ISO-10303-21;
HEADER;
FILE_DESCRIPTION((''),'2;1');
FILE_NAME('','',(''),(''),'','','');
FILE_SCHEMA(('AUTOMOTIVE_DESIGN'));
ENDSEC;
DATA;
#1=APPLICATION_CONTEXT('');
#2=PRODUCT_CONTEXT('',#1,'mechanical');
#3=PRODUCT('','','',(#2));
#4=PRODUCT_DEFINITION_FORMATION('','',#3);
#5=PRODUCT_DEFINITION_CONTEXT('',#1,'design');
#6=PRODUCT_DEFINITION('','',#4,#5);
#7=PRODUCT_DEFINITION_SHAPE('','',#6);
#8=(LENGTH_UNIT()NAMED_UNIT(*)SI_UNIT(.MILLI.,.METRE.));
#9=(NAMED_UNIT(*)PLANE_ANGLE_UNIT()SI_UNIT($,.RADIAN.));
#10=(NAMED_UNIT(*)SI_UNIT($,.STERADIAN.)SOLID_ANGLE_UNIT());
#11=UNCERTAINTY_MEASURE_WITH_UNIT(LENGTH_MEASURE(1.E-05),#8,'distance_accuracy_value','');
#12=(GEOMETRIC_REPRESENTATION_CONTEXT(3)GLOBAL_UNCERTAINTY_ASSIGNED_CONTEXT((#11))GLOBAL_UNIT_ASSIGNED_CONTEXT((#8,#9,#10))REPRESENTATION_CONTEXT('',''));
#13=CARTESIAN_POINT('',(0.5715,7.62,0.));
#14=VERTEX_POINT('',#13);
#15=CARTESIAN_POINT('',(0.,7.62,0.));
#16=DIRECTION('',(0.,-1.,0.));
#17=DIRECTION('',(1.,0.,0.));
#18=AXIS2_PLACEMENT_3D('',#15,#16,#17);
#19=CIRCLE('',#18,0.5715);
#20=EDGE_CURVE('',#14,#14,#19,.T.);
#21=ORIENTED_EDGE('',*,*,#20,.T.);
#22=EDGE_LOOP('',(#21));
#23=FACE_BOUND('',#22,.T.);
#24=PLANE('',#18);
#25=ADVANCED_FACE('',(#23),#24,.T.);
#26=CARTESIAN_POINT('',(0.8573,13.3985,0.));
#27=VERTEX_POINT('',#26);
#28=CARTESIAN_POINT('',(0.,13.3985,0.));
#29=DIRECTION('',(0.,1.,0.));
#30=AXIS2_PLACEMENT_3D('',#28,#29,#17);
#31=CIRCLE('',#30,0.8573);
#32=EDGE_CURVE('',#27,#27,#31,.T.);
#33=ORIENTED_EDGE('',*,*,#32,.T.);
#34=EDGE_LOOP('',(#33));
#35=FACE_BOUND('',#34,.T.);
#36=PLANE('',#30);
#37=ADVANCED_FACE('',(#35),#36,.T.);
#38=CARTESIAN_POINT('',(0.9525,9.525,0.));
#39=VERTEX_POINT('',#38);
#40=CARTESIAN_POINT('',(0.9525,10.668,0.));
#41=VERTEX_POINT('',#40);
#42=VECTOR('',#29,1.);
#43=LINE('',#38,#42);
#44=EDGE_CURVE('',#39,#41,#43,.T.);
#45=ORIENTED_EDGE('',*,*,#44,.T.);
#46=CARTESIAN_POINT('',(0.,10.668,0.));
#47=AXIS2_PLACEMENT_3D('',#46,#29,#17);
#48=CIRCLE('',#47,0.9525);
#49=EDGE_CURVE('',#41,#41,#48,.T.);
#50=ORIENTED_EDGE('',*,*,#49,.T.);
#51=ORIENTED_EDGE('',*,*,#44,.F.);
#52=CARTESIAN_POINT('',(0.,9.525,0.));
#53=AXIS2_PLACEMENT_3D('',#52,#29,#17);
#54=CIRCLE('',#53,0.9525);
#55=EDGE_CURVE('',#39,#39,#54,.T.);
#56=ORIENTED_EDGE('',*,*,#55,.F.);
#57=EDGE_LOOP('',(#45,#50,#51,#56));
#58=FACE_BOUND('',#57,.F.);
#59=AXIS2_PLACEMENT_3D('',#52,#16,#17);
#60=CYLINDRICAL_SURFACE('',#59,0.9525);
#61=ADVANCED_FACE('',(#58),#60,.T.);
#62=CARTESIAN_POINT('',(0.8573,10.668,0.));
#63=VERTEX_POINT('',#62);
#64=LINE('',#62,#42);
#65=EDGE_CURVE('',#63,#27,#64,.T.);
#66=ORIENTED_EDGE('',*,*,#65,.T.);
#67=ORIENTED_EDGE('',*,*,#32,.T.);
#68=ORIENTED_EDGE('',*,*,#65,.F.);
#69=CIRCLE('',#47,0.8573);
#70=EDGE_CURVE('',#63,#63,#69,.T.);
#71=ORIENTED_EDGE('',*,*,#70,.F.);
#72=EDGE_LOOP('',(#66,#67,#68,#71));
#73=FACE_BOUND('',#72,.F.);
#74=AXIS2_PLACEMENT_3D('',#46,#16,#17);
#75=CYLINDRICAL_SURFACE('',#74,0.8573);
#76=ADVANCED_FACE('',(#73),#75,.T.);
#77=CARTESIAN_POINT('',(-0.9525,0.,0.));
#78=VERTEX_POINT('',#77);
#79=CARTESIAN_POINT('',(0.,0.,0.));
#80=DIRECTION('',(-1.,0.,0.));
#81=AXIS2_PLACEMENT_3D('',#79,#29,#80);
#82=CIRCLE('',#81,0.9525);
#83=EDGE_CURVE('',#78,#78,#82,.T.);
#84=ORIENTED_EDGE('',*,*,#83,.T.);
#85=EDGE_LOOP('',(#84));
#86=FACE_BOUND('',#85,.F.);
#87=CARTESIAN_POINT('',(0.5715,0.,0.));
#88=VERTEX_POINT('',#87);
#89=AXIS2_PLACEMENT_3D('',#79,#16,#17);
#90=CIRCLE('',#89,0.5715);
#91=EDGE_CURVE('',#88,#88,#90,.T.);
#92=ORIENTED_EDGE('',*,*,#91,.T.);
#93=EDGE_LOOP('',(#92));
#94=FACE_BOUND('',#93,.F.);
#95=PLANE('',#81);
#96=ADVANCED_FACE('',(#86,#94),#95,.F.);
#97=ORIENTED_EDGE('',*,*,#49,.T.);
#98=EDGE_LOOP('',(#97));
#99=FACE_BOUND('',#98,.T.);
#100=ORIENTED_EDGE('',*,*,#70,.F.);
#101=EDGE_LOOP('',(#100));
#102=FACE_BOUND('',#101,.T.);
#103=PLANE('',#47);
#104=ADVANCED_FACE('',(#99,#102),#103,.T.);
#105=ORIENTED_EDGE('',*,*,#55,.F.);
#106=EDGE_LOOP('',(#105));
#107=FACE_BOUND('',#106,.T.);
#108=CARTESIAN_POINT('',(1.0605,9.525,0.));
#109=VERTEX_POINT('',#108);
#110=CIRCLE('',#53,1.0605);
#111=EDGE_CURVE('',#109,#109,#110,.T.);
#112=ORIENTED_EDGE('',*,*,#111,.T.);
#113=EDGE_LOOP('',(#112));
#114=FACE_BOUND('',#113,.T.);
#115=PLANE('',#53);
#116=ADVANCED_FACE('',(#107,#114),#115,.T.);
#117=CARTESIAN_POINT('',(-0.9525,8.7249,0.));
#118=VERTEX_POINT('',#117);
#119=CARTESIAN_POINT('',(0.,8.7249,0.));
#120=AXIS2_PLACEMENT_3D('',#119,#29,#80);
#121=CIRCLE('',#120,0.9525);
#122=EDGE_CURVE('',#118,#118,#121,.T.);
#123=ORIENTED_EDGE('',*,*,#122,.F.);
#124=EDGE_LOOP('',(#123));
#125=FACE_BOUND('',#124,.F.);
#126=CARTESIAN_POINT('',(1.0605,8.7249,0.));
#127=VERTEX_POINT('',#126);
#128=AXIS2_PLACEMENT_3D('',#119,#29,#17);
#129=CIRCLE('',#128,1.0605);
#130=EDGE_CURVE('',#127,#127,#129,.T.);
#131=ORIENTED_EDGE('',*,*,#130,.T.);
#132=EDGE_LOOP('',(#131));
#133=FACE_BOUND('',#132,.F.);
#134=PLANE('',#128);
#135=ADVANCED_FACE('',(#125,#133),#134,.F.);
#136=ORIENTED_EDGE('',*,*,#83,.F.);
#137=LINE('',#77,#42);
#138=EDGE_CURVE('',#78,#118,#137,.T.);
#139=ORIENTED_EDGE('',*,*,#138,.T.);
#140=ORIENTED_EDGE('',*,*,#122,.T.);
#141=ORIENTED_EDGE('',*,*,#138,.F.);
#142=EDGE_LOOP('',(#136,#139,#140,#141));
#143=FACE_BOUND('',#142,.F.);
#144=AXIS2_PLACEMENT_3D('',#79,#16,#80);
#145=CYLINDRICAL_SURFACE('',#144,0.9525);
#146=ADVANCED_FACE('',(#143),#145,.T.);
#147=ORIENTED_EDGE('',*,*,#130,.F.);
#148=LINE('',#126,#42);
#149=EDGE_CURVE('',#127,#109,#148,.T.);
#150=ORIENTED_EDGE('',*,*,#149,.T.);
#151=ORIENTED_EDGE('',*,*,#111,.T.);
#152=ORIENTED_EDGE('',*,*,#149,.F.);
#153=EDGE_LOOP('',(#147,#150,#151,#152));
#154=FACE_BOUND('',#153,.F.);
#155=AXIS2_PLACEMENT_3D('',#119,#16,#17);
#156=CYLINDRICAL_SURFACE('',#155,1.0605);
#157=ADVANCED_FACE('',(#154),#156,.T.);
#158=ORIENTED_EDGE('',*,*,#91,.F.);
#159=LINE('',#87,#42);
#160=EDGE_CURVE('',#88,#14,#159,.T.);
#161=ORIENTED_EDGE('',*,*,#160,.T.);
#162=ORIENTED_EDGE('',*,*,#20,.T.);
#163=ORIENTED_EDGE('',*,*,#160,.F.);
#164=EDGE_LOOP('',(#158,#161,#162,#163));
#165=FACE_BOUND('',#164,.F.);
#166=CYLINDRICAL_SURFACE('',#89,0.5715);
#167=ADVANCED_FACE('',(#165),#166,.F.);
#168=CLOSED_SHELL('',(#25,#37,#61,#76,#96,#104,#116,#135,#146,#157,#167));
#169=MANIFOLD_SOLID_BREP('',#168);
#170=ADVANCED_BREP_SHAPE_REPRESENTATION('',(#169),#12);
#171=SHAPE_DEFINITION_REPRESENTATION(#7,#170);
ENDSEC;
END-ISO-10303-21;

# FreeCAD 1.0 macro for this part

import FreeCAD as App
import Part
import Sketcher

V = App.Vector
Q = App.Units.Quantity

doc = App.newDocument("Part")
body = doc.addObject("PartDesign::Body", "Body")

sketch1 = body.newObject("Sketcher::SketchObject", "Sketch")
sketch1.AttachmentSupport = (doc.getObject("XZ_Plane"), [""])
sketch1.MapMode = "FlatFace"
sketch1.addGeometry(Part.Circle(V(0, 0, 0), V(0, 0, 1), 1), False)
sketch1.addConstraint(Sketcher.Constraint("Coincident", 0, 3, -1, 1))
sketch1.addConstraint(Sketcher.Constraint("Diameter", 0, Q("0.075 in")))
pad1 = body.newObject("PartDesign::Pad", "Pad")
pad1.Profile = sketch1
pad1.Length = Q("0.3435 in")
pad1.Reversed = True

sketch2 = body.newObject("Sketcher::SketchObject", "Sketch001")
sketch2.AttachmentSupport = (doc.getObject("XZ_Plane"), [""])
sketch2.MapMode = "FlatFace"
sketch2.AttachmentOffset = App.Placement(V(0, 0, -0.3435 * 25.4), App.Rotation())
sketch2.addGeometry(Part.Circle(V(0, 0, 0), V(0, 0, 1), 1.1), False)
sketch2.addConstraint(Sketcher.Constraint("Coincident", 0, 3, -1, 1))
sketch2.addConstraint(Sketcher.Constraint("Diameter", 0, Q("0.0835 in")))
pad2 = body.newObject("PartDesign::Pad", "Pad001")
pad2.Profile = sketch2
pad2.Length = Q("0.0315 in")
pad2.Reversed = True

sketch3 = body.newObject("Sketcher::SketchObject", "Sketch002")
sketch3.AttachmentSupport = (doc.getObject("XZ_Plane"), [""])
sketch3.MapMode = "FlatFace"
sketch3.AttachmentOffset = App.Placement(V(0, 0, -0.375 * 25.4), App.Rotation())
sketch3.addGeometry(Part.Circle(V(0, 0, 0), V(0, 0, 1), 1), False)
sketch3.addConstraint(Sketcher.Constraint("Coincident", 0, 3, -1, 1))
sketch3.addConstraint(Sketcher.Constraint("Diameter", 0, Q("0.075 in")))
pad3 = body.newObject("PartDesign::Pad", "Pad002")
pad3.Profile = sketch3
pad3.Length = Q("0.045 in")
pad3.Reversed = True

sketch4 = body.newObject("Sketcher::SketchObject", "Sketch003")
sketch4.AttachmentSupport = (doc.getObject("XZ_Plane"), [""])
sketch4.MapMode = "FlatFace"
sketch4.AttachmentOffset = App.Placement(V(0, 0, -0.42 * 25.4), App.Rotation())
sketch4.addGeometry(Part.Circle(V(0, 0, 0), V(0, 0, 1), 0.9), False)
sketch4.addConstraint(Sketcher.Constraint("Coincident", 0, 3, -1, 1))
sketch4.addConstraint(Sketcher.Constraint("Diameter", 0, Q("0.0675 in")))
pad4 = body.newObject("PartDesign::Pad", "Pad003")
pad4.Profile = sketch4
pad4.Length = Q("0.1075 in")
pad4.Reversed = True

sketch5 = body.newObject("Sketcher::SketchObject", "Sketch004")
sketch5.AttachmentSupport = (doc.getObject("XZ_Plane"), [""])
sketch5.MapMode = "FlatFace"
sketch5.addGeometry(Part.Circle(V(0, 0, 0), V(0, 0, 1), 0.6), False)
sketch5.addConstraint(Sketcher.Constraint("Coincident", 0, 3, -1, 1))
sketch5.addConstraint(Sketcher.Constraint("Diameter", 0, Q("0.045 in")))
pocket1 = body.newObject("PartDesign::Pocket", "Pocket")
pocket1.Profile = sketch5
pocket1.Length = Q("0.3 in")

doc.recompute()
